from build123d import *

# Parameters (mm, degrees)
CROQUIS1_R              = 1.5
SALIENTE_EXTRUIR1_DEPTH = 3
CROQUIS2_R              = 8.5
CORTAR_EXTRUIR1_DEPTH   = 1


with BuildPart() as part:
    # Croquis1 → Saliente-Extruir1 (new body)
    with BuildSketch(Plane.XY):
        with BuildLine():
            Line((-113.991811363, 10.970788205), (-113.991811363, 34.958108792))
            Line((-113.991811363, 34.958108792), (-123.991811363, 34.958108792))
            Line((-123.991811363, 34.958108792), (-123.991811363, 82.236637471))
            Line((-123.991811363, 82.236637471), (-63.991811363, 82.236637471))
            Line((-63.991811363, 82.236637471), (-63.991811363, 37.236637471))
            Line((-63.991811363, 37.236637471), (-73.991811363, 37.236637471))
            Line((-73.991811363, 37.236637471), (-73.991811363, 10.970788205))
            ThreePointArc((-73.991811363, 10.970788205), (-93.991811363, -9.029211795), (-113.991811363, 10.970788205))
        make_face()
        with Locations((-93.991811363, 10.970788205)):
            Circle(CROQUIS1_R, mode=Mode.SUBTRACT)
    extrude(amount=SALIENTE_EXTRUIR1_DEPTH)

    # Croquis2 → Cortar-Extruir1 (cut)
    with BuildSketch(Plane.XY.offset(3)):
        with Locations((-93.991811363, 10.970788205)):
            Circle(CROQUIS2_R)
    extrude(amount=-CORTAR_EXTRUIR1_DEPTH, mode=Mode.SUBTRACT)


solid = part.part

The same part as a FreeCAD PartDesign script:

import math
import FreeCAD as App
import Part
import Sketcher

V = App.Vector
Q = App.Units.Quantity

doc = App.newDocument("Part")
body = doc.addObject("PartDesign::Body", "Body")

# Sketch on XY plane
sketch1 = body.newObject("Sketcher::SketchObject", "Sketch")
sketch1.AttachmentSupport = (doc.getObject("XY_Plane"), [""])
sketch1.MapMode = "FlatFace"
sketch1.addGeometry([
    Part.LineSegment(V(-113.991811, 34.958109, 0), V(-113.991811, 10.970788, 0)),  # 0
    Part.ArcOfCircle(Part.Circle(V(-93.991811, 10.970788, 0), V(0, 0, 1), 20), math.radians(180), math.radians(360)),  # 1
    Part.LineSegment(V(-73.991811, 10.970788, 0), V(-73.991811, 37.236637, 0)),  # 2
    Part.LineSegment(V(-73.991811, 37.236637, 0), V(-63.991811, 37.236637, 0)),  # 3
    Part.LineSegment(V(-63.991811, 37.236637, 0), V(-63.991811, 82.236637, 0)),  # 4
    Part.LineSegment(V(-63.991811, 82.236637, 0), V(-123.991811, 82.236637, 0)),  # 5
    Part.LineSegment(V(-123.991811, 82.236637, 0), V(-123.991811, 34.958109, 0)),  # 6
    Part.LineSegment(V(-123.991811, 34.958109, 0), V(-113.991811, 34.958109, 0)),  # 7
    Part.Circle(V(-93.991811, 10.970788, 0), V(0, 0, 1), 1.5),  # 8
], False)
sketch1.addConstraint([
    Sketcher.Constraint("Tangent", 0, 2, 1, 1),
    Sketcher.Constraint("Tangent", 1, 2, 2, 1),
    Sketcher.Constraint("Coincident", 2, 2, 3, 1),
    Sketcher.Constraint("Coincident", 3, 2, 4, 1),
    Sketcher.Constraint("Coincident", 4, 2, 5, 1),
    Sketcher.Constraint("Coincident", 5, 2, 6, 1),
    Sketcher.Constraint("Coincident", 6, 2, 7, 1),
    Sketcher.Constraint("Coincident", 7, 2, 0, 1),
    Sketcher.Constraint("Vertical", 0),
    Sketcher.Constraint("Vertical", 2),
    Sketcher.Constraint("Horizontal", 3),
    Sketcher.Constraint("Vertical", 4),
    Sketcher.Constraint("Horizontal", 5),
    Sketcher.Constraint("Vertical", 6),
    Sketcher.Constraint("Horizontal", 7),
    Sketcher.Constraint("Coincident", 8, 3, 1, 3),
    Sketcher.Constraint("Equal", 3, 7),
    Sketcher.Constraint("Diameter", 8, Q("3 mm")),
    Sketcher.Constraint("Radius", 1, Q("20 mm")),
    Sketcher.Constraint("DistanceX", 3, 1, 3, 2, Q("10 mm")),
    Sketcher.Constraint("DistanceY", 4, 1, 4, 2, Q("45 mm")),
    Sketcher.Constraint("DistanceY", 0, 2, 0, 1, Q("23.987321 mm")),
    Sketcher.Constraint("DistanceY", 2, 1, 2, 2, Q("26.265849 mm")),
    Sketcher.Constraint("DistanceX", 1, 3, -1, 1, Q("93.991811 mm")),
    Sketcher.Constraint("DistanceY", -1, 1, 1, 3, Q("10.970788 mm")),
])
pad1 = body.newObject("PartDesign::Pad", "Pad")
pad1.Profile = sketch1
pad1.Length = 3

# Sketch on XY plane
sketch2 = body.newObject("Sketcher::SketchObject", "Sketch001")
sketch2.AttachmentSupport = (doc.getObject("XY_Plane"), [""])
sketch2.MapMode = "FlatFace"
sketch2.AttachmentOffset = App.Placement(V(0, 0, 3), App.Rotation())
sketch2.addGeometry(Part.Circle(V(-93.991811, 10.970788, 0), V(0, 0, 1), 8.5), False)
sketch2.addConstraint([
    Sketcher.Constraint("Diameter", 0, Q("17 mm")),
    Sketcher.Constraint("DistanceX", 0, 3, -1, 1, Q("93.991811 mm")),
    Sketcher.Constraint("DistanceY", -1, 1, 0, 3, Q("10.970788 mm")),
])
pocket1 = body.newObject("PartDesign::Pocket", "Pocket")
pocket1.Profile = sketch2
pocket1.Length = 1

doc.recompute()
